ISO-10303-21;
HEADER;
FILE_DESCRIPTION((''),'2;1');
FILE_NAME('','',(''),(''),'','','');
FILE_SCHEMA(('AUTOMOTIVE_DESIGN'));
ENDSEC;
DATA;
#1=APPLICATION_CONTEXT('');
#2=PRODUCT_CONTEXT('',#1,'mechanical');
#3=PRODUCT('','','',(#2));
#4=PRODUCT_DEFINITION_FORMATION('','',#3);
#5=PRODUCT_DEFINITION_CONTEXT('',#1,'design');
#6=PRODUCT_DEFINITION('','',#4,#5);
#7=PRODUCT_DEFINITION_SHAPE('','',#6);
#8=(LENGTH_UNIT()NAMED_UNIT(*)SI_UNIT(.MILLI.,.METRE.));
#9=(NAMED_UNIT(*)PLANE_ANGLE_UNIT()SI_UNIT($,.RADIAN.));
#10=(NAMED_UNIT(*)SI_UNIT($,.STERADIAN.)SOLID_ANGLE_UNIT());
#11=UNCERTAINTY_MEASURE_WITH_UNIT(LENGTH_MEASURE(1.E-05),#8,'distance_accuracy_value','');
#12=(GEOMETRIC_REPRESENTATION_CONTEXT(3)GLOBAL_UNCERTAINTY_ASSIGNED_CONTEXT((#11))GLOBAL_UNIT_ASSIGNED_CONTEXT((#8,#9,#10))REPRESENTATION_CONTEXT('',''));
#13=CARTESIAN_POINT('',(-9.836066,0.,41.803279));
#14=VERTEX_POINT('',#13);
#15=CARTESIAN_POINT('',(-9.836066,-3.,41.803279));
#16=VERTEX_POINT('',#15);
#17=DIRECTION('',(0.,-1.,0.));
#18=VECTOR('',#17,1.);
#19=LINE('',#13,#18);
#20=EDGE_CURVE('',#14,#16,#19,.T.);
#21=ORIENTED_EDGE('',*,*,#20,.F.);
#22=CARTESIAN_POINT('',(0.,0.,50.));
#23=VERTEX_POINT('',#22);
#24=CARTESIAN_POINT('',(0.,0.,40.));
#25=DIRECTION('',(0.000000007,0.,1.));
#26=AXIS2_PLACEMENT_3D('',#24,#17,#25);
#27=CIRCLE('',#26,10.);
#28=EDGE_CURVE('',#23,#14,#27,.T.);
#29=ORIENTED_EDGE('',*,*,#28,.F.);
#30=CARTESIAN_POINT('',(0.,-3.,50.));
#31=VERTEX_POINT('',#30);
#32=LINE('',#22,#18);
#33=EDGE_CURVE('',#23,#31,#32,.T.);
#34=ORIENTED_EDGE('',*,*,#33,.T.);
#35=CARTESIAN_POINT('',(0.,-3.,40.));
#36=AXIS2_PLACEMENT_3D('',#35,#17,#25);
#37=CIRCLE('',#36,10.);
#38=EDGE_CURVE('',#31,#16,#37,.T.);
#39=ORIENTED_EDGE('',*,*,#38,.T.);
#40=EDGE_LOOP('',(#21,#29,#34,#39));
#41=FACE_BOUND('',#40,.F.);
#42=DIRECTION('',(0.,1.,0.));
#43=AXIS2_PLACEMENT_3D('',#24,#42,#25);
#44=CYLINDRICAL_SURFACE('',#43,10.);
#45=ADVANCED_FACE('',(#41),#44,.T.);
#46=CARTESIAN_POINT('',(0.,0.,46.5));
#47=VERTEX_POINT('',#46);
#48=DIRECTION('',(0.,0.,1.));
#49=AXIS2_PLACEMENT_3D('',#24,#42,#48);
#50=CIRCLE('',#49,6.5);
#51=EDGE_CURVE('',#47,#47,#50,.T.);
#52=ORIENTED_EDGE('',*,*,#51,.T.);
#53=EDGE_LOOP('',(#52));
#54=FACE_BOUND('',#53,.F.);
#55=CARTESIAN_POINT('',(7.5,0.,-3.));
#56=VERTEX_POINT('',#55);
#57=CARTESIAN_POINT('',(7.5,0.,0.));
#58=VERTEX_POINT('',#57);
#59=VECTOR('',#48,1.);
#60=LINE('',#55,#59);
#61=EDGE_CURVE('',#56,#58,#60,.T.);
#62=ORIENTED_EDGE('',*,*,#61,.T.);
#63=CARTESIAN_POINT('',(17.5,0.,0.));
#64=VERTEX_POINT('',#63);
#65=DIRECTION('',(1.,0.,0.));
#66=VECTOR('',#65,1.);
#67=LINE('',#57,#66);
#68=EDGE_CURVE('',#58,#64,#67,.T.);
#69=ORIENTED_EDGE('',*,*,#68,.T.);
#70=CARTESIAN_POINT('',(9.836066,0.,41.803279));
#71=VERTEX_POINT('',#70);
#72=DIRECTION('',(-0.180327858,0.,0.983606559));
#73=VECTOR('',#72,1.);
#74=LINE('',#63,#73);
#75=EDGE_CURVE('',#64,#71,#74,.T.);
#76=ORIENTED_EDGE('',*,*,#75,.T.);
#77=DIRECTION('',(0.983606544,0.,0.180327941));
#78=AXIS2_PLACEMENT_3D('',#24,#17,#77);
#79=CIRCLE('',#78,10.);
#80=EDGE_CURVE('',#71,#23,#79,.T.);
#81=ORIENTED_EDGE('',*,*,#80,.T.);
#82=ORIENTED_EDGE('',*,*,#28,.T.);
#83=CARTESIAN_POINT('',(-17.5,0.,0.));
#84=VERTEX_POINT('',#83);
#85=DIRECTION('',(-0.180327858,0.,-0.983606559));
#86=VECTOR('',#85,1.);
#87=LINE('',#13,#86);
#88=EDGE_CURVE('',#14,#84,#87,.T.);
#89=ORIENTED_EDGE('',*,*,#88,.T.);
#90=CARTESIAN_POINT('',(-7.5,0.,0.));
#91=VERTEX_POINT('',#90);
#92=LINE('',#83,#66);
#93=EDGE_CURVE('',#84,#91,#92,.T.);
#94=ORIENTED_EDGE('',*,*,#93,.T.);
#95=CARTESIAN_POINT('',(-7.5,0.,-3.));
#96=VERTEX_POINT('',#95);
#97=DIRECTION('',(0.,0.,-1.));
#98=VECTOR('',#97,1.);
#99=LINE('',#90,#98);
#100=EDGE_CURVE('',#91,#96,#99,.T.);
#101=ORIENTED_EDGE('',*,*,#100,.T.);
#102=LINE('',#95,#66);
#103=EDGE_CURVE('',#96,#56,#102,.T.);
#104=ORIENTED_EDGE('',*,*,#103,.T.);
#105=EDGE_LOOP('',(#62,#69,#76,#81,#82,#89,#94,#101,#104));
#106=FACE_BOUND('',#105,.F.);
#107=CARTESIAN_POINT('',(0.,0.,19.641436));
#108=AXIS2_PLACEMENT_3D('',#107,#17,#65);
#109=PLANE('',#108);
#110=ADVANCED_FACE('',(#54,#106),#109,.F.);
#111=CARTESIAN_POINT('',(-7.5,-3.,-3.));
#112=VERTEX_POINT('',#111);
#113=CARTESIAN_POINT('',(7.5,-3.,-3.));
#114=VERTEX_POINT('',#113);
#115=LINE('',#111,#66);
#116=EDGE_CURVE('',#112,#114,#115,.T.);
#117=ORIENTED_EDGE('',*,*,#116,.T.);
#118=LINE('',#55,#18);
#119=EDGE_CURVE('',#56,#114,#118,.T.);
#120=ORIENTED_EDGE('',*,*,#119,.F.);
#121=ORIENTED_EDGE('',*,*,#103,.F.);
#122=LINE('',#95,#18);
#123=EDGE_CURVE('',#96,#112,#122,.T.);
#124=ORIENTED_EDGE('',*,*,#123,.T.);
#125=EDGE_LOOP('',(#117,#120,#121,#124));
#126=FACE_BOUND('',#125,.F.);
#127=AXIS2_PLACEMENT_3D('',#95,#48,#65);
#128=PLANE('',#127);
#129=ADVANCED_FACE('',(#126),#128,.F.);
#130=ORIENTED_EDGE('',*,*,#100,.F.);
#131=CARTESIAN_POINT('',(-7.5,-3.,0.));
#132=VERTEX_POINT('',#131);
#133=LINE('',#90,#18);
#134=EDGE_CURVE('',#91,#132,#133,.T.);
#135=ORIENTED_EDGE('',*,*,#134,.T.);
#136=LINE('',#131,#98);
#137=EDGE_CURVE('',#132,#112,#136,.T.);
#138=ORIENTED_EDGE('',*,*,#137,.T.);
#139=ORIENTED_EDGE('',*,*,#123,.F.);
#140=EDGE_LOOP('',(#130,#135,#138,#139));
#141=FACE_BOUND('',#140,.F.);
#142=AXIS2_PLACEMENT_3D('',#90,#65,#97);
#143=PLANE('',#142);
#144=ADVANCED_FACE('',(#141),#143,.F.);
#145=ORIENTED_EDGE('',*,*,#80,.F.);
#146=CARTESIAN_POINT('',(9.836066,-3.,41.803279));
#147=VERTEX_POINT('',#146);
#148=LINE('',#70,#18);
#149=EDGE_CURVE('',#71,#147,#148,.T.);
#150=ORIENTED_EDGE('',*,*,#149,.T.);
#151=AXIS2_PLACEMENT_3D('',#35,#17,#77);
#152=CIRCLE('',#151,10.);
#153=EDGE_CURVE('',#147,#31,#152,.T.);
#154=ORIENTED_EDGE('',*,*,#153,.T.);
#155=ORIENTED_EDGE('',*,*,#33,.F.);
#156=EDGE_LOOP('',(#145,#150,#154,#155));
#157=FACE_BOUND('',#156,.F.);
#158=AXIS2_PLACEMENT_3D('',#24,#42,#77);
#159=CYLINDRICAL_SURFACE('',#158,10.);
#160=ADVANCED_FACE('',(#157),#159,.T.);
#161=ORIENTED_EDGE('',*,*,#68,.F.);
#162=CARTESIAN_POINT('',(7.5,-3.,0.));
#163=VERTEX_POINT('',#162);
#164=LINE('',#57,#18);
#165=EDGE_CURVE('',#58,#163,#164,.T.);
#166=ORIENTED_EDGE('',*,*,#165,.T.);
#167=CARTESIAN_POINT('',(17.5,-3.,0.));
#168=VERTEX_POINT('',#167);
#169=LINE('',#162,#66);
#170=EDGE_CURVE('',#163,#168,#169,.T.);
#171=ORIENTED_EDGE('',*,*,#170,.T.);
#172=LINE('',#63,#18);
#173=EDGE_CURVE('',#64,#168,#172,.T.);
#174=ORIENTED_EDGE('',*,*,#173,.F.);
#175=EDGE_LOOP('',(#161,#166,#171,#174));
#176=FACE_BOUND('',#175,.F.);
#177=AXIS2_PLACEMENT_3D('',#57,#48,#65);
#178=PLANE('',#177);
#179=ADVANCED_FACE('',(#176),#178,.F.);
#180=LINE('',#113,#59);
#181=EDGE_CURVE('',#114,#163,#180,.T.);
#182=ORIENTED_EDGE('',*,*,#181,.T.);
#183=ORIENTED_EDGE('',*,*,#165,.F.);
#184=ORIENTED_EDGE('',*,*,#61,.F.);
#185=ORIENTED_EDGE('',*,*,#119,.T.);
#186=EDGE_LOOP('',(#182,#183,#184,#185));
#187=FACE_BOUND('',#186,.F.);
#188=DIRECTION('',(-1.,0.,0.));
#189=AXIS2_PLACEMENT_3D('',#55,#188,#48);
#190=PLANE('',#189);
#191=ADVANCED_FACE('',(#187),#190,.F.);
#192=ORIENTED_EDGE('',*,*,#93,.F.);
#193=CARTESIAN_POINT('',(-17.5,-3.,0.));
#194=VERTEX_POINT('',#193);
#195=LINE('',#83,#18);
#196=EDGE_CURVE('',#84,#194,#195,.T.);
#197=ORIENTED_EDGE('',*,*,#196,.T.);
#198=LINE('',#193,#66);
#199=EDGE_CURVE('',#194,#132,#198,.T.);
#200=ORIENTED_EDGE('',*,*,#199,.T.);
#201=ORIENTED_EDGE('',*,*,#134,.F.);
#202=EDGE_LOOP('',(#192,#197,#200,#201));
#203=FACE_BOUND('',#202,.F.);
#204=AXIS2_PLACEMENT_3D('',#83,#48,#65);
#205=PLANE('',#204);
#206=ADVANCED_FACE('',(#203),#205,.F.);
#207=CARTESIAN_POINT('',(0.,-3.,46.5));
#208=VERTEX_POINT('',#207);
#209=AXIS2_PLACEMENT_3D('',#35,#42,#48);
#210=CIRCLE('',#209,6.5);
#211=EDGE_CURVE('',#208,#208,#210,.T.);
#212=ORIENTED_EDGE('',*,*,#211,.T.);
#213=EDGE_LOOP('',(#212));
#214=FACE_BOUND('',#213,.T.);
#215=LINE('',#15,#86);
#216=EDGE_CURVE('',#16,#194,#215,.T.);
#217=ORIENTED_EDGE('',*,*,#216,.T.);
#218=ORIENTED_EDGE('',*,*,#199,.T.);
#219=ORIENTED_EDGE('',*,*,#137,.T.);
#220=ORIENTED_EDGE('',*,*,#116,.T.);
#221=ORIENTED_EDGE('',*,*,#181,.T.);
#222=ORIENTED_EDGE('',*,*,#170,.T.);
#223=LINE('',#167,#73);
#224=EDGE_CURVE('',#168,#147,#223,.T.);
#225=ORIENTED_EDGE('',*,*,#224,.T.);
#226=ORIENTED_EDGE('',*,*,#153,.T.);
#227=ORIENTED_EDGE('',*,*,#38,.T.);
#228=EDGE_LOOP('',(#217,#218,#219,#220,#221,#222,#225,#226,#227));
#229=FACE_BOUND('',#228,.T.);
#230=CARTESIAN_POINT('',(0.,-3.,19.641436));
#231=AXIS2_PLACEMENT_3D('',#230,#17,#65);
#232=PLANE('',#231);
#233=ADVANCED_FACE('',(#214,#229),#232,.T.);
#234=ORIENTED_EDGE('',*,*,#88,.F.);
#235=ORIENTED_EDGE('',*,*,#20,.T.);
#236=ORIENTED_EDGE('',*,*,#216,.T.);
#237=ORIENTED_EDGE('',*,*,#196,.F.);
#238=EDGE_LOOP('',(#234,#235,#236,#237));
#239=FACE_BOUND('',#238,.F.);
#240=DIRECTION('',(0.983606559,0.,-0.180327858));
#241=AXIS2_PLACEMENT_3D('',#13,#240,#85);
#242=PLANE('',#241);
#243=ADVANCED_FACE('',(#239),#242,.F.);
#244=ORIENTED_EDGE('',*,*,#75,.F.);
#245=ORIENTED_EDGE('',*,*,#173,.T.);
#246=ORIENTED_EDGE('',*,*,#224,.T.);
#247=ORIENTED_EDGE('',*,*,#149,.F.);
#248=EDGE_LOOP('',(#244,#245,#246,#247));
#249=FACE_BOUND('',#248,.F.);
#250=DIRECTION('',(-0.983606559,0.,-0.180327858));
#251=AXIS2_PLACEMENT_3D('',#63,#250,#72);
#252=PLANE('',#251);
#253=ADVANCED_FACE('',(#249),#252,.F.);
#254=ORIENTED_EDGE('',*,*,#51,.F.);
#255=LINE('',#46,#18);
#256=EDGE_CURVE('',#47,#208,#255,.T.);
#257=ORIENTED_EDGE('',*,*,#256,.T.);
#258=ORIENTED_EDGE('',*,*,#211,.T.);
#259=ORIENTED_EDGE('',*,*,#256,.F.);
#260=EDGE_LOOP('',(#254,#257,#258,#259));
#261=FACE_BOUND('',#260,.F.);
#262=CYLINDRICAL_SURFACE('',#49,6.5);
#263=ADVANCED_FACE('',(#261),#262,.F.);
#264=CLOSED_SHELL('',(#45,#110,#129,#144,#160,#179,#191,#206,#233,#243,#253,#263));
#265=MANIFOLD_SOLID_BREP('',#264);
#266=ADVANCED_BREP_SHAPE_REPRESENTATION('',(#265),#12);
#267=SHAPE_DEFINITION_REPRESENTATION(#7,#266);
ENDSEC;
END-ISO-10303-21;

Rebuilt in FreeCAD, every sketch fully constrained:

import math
import FreeCAD as App
import Part
import Sketcher
from FreeCAD import Vector
Q = App.Units.Quantity

doc = App.newDocument("Part")
body = doc.addObject("PartDesign::Body", "Body")

sketch1 = doc.addObject("Sketcher::SketchObject", "Sketch")
body.addObject(sketch1)
sketch1.AttachmentSupport = (doc.XZ_Plane, [""])
sketch1.MapMode = "FlatFace"
sketch1.addGeometry(Part.ArcOfCircle(Part.Circle(Vector(0, 40, 0), Vector(0, 0, 1), 10), math.radians(90), math.radians(169.611138)), False)
sketch1.addGeometry(Part.LineSegment(Vector(-9.836066, 41.803279, 0), Vector(-17.5, 0, 0)), False)
sketch1.addGeometry(Part.LineSegment(Vector(-17.5, 0, 0), Vector(-7.5, 0, 0)), False)
sketch1.addGeometry(Part.LineSegment(Vector(-7.5, 0, 0), Vector(-7.5, -3, 0)), False)
sketch1.addGeometry(Part.LineSegment(Vector(-7.5, -3, 0), Vector(7.5, -3, 0)), False)
sketch1.addGeometry(Part.LineSegment(Vector(7.5, -3, 0), Vector(7.5, 0, 0)), False)
sketch1.addGeometry(Part.LineSegment(Vector(7.5, 0, 0), Vector(17.5, 0, 0)), False)
sketch1.addGeometry(Part.LineSegment(Vector(17.5, 0, 0), Vector(9.836066, 41.803279, 0)), False)
sketch1.addGeometry(Part.ArcOfCircle(Part.Circle(Vector(0, 40, 0), Vector(0, 0, 1), 10), math.radians(10.388862), math.radians(90)), False)
sketch1.addGeometry(Part.Circle(Vector(0, 40, 0), Vector(0, 0, 1), 6.5), False)
sketch1.addConstraint(Sketcher.Constraint("Tangent", 0, 2, 1, 1))
sketch1.addConstraint(Sketcher.Constraint("Coincident", 1, 2, 2, 1))
sketch1.addConstraint(Sketcher.Constraint("Coincident", 2, 2, 3, 1))
sketch1.addConstraint(Sketcher.Constraint("Coincident", 3, 2, 4, 1))
sketch1.addConstraint(Sketcher.Constraint("Coincident", 4, 2, 5, 1))
sketch1.addConstraint(Sketcher.Constraint("Coincident", 5, 2, 6, 1))
sketch1.addConstraint(Sketcher.Constraint("Coincident", 6, 2, 7, 1))
sketch1.addConstraint(Sketcher.Constraint("Tangent", 7, 2, 8, 1))
sketch1.addConstraint(Sketcher.Constraint("Tangent", 8, 2, 0, 1))
sketch1.addConstraint(Sketcher.Constraint("Horizontal", 2))
sketch1.addConstraint(Sketcher.Constraint("Vertical", 3))
sketch1.addConstraint(Sketcher.Constraint("Horizontal", 4))
sketch1.addConstraint(Sketcher.Constraint("Vertical", 5))
sketch1.addConstraint(Sketcher.Constraint("Horizontal", 6))
sketch1.addConstraint(Sketcher.Constraint("Coincident", 9, 3, 0, 3))
sketch1.addConstraint(Sketcher.Constraint("Equal", 0, 8))
sketch1.addConstraint(Sketcher.Constraint("Symmetric", 2, 2, 5, 2, -1, 1))
sketch1.addConstraint(Sketcher.Constraint("Symmetric", 1, 2, 6, 2, -2))
sketch1.addConstraint(Sketcher.Constraint("PointOnObject", 0, 3, -2))
sketch1.addConstraint(Sketcher.Constraint("PointOnObject", 8, 2, -2))
sketch1.addConstraint(Sketcher.Constraint("Diameter", 9, Q("13 mm")))
sketch1.addConstraint(Sketcher.Constraint("Radius", 0, Q("10 mm")))
sketch1.addConstraint(Sketcher.Constraint("DistanceX", 2, 1, 2, 2, Q("10 mm")))
sketch1.addConstraint(Sketcher.Constraint("DistanceX", 4, 1, 4, 2, Q("15 mm")))
sketch1.addConstraint(Sketcher.Constraint("DistanceY", 3, 2, 3, 1, Q("3 mm")))
sketch1.addConstraint(Sketcher.Constraint("DistanceY", -1, 1, 0, 3, Q("40 mm")))
pad1 = doc.addObject("PartDesign::Pad", "Pad")
body.addObject(pad1)
pad1.Profile = sketch1
pad1.Length = 3

doc.recompute()
